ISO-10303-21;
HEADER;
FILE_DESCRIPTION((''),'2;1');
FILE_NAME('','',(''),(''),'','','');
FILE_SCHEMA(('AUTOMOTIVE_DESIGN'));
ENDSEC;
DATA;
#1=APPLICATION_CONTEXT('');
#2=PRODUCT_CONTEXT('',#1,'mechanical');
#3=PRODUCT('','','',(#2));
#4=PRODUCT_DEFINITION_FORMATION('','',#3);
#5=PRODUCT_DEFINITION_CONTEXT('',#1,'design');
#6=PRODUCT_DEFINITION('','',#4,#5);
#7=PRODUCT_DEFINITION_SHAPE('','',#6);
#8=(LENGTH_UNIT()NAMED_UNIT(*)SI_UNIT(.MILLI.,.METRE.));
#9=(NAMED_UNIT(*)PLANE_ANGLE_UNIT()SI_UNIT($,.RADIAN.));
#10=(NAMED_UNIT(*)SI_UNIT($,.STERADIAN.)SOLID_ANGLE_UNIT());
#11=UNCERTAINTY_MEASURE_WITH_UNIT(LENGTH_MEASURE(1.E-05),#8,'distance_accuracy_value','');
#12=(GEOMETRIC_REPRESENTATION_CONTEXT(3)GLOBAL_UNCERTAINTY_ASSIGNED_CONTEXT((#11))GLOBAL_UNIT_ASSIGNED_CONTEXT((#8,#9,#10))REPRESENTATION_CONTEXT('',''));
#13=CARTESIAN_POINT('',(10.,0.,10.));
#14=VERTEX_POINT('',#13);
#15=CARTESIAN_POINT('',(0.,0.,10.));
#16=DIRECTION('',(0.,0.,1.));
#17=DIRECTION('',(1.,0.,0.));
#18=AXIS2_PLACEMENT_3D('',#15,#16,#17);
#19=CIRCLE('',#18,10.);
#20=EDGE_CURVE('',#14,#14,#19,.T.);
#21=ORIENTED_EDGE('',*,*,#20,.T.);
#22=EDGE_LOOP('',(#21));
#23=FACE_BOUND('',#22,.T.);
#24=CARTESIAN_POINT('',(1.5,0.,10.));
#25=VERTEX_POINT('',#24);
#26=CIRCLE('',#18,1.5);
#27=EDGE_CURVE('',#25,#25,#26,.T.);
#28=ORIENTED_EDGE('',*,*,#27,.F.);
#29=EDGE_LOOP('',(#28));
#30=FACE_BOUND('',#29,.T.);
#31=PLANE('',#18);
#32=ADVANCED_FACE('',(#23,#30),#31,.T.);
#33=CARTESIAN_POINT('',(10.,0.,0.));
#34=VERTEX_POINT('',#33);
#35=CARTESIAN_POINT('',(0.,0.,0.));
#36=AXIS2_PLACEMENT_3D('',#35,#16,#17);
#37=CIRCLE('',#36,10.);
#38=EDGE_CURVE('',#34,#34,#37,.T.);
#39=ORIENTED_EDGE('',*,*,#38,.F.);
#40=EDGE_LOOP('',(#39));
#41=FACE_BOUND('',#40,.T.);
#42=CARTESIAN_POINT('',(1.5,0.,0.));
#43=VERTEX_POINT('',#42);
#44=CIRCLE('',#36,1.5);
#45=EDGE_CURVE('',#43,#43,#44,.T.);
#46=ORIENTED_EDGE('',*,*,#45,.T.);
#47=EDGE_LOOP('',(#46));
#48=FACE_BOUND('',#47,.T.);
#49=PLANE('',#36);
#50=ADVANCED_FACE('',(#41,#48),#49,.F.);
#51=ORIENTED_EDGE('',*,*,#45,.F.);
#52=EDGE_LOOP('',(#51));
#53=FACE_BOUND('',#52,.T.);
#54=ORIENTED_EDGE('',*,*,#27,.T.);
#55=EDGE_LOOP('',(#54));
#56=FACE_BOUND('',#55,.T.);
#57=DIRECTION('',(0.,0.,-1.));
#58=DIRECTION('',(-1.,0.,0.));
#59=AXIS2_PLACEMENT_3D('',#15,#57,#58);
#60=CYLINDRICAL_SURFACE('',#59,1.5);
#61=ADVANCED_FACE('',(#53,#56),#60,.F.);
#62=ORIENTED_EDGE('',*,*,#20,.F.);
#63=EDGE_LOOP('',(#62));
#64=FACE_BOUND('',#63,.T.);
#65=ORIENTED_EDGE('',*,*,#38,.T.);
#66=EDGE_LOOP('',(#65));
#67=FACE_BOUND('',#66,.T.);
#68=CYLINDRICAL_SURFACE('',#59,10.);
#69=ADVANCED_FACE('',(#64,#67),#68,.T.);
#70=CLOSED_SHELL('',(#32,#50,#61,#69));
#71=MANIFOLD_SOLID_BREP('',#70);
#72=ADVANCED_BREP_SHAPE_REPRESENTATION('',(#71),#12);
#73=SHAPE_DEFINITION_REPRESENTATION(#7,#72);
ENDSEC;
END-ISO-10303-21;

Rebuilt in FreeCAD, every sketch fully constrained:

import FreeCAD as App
import Part
import Sketcher

doc = App.newDocument("Part")
body = doc.addObject("PartDesign::Body", "Body")

# Sketch on XY plane
sketch1 = body.newObject("Sketcher::SketchObject", "Sketch")
sketch1.AttachmentSupport = (doc.getObject("XY_Plane"), [""])
sketch1.MapMode = "FlatFace"
sketch1.addGeometry(Part.Circle(App.Vector(0, 0, 0), App.Vector(0, 0, 1), 10), False)
sketch1.addGeometry(Part.Circle(App.Vector(0, 0, 0), App.Vector(0, 0, 1), 1.5), False)
sketch1.addConstraint(Sketcher.Constraint("Coincident", 0, 3, -1, 1))
sketch1.addConstraint(Sketcher.Constraint("Coincident", 1, 3, -1, 1))
sketch1.addConstraint(Sketcher.Constraint("Diameter", 0, 20.0))
sketch1.addConstraint(Sketcher.Constraint("Diameter", 1, 3.0))
pad1 = body.newObject("PartDesign::Pad", "Pad")
pad1.Profile = sketch1
pad1.Length = 10

doc.recompute()
